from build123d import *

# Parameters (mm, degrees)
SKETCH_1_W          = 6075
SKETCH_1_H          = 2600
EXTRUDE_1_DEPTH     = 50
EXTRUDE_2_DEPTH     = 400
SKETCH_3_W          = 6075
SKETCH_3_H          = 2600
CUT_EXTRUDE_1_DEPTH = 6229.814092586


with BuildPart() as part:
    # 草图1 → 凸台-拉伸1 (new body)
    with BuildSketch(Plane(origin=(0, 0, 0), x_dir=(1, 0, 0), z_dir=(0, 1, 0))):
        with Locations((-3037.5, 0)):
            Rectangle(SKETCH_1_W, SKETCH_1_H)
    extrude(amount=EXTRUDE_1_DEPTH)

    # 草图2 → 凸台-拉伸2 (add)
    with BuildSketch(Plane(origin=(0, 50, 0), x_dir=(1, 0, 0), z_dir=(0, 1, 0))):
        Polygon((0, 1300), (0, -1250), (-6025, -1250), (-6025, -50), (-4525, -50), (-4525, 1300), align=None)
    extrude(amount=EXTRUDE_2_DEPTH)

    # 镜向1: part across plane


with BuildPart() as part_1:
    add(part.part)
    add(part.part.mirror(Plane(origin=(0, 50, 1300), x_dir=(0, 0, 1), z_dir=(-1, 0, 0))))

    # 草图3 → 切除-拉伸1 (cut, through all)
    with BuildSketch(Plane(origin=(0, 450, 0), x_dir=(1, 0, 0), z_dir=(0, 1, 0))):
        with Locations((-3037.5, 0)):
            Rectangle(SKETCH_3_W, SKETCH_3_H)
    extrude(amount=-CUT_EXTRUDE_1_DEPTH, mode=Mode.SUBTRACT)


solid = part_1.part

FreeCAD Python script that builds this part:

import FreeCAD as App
import Part
import Sketcher
Q = App.Units.Quantity


def add_polygon(sketch, points):
    """Adds a closed chain of lines whose ends are joined by coincident constraints."""
    first, n = sketch.GeometryCount, len(points)
    for a, b in zip(points, points[1:] + points[:1]):
        sketch.addGeometry(Part.LineSegment(App.Vector(*a, 0), App.Vector(*b, 0)), False)
    for i in range(n):
        sketch.addConstraint(Sketcher.Constraint("Coincident", first + i, 2, first + (i + 1) % n, 1))

doc = App.newDocument("Part")
params = doc.addObject("Spreadsheet::Sheet", "Params")
for row, (alias, value) in enumerate([
    ("sketch1_width", "6075 mm"),
    ("sketch1_height", "2600 mm"),
    ("pad1_length", "50 mm"),
    ("sketch2_width", "4525 mm"),
    ("sketch2_width2", "1500 mm"),
    ("sketch2_height", "2550 mm"),
    ("sketch2_height2", "1350 mm"),
    ("pad2_length", "400 mm"),
    ("sketch3_width", "6075 mm"),
    ("sketch3_height", "2600 mm"),
], start=1):
    params.set(f"A{row}", alias)
    params.set(f"B{row}", "=" + value)
    params.setAlias(f"B{row}", alias)

body = doc.addObject("PartDesign::Body", "Body")

sketch1 = body.newObject("Sketcher::SketchObject", "Sketch")
sketch1.AttachmentSupport = (doc.getObject("XZ_Plane"), [""])
sketch1.MapMode = "FlatFace"
add_polygon(sketch1, [(-6075, -1300), (-6075, 1300), (0, 1300), (0, -1300)])
sketch1.addConstraint(Sketcher.Constraint("Vertical", 0))
sketch1.addConstraint(Sketcher.Constraint("Horizontal", 1))
sketch1.addConstraint(Sketcher.Constraint("Vertical", 2))
sketch1.addConstraint(Sketcher.Constraint("Horizontal", 3))
sketch1.addConstraint(Sketcher.Constraint("Symmetric", 1, 2, 2, 2, -1, 1))
sketch1.addConstraint(Sketcher.Constraint("DistanceX", 1, 1, 1, 2, Q("6075 mm")))
sketch1.addConstraint(Sketcher.Constraint("DistanceY", 0, 1, 0, 2, Q("2600 mm")))
sketch1.setExpression("Constraints[9]", "Params.sketch1_width")
sketch1.setExpression("Constraints[10]", "Params.sketch1_height")
pad1 = body.newObject("PartDesign::Pad", "Pad")
pad1.Profile = sketch1
pad1.setExpression("Length", "Params.pad1_length")
pad1.Reversed = True

sketch2 = body.newObject("Sketcher::SketchObject", "Sketch001")
sketch2.AttachmentSupport = (doc.getObject("XZ_Plane"), [""])
sketch2.MapMode = "FlatFace"
sketch2.AttachmentOffset = App.Placement(App.Vector(0, 0, -50), App.Rotation())
add_polygon(sketch2, [(0, 1250), (0, -1300), (-4525, -1300), (-4525, 50), (-6025, 50), (-6025, 1250)])
sketch2.addConstraint(Sketcher.Constraint("Vertical", 0))
sketch2.addConstraint(Sketcher.Constraint("Horizontal", 1))
sketch2.addConstraint(Sketcher.Constraint("Vertical", 2))
sketch2.addConstraint(Sketcher.Constraint("Horizontal", 3))
sketch2.addConstraint(Sketcher.Constraint("Vertical", 4))
sketch2.addConstraint(Sketcher.Constraint("Horizontal", 5))
sketch2.addConstraint(Sketcher.Constraint("PointOnObject", 0, 2, -2))
sketch2.addConstraint(Sketcher.Constraint("DistanceX", 1, 2, 1, 1, Q("4525 mm")))
sketch2.addConstraint(Sketcher.Constraint("DistanceX", 3, 2, 3, 1, Q("1500 mm")))
sketch2.addConstraint(Sketcher.Constraint("DistanceY", 0, 2, 0, 1, Q("2550 mm")))
sketch2.addConstraint(Sketcher.Constraint("DistanceY", 2, 1, 2, 2, Q("1350 mm")))
sketch2.addConstraint(Sketcher.Constraint("DistanceY", 0, 2, -1, 1, Q("1300 mm")))
sketch2.setExpression("Constraints[13]", "Params.sketch2_width")
sketch2.setExpression("Constraints[14]", "Params.sketch2_width2")
sketch2.setExpression("Constraints[15]", "Params.sketch2_height")
sketch2.setExpression("Constraints[16]", "Params.sketch2_height2")
pad2 = body.newObject("PartDesign::Pad", "Pad001")
pad2.Profile = sketch2
pad2.setExpression("Length", "Params.pad2_length")
pad2.Reversed = True
body2 = doc.addObject("PartDesign::Body", "Body001")
doc.recompute()

body2.BaseFeature = body
doc.recompute()

mirroring = doc.addObject("Part::Mirroring", "Mirroring")
mirroring.Source = body
mirroring.Base = App.Vector(0, 50, 1300)
mirroring.Normal = App.Vector(-1, 0, 0)
body3 = doc.addObject("PartDesign::Body", "Body002")
body3.BaseFeature = mirroring
boolean = body2.newObject("PartDesign::Boolean", "Boolean")
boolean.Type = "Fuse"
boolean.addObjects([body3])
doc.recompute()

sketch3 = body2.newObject("Sketcher::SketchObject", "Sketch002")
sketch3.AttachmentSupport = (doc.getObject("XZ_Plane001"), [""])
sketch3.MapMode = "FlatFace"
sketch3.AttachmentOffset = App.Placement(App.Vector(0, 0, -450), App.Rotation())
add_polygon(sketch3, [(-6075, -1300), (-6075, 1300), (0, 1300), (0, -1300)])
sketch3.addConstraint(Sketcher.Constraint("Vertical", 0))
sketch3.addConstraint(Sketcher.Constraint("Horizontal", 1))
sketch3.addConstraint(Sketcher.Constraint("Vertical", 2))
sketch3.addConstraint(Sketcher.Constraint("Horizontal", 3))
sketch3.addConstraint(Sketcher.Constraint("Symmetric", 1, 2, 2, 2, -1, 1))
sketch3.addConstraint(Sketcher.Constraint("DistanceX", 1, 1, 1, 2, Q("6075 mm")))
sketch3.addConstraint(Sketcher.Constraint("DistanceY", 0, 1, 0, 2, Q("2600 mm")))
sketch3.setExpression("Constraints[9]", "Params.sketch3_width")
sketch3.setExpression("Constraints[10]", "Params.sketch3_height")
pocket1 = body2.newObject("PartDesign::Pocket", "Pocket")
pocket1.Profile = sketch3
pocket1.Type = "ThroughAll"
pocket1.Reversed = True
mirroring.Visibility = False

doc.recompute()
